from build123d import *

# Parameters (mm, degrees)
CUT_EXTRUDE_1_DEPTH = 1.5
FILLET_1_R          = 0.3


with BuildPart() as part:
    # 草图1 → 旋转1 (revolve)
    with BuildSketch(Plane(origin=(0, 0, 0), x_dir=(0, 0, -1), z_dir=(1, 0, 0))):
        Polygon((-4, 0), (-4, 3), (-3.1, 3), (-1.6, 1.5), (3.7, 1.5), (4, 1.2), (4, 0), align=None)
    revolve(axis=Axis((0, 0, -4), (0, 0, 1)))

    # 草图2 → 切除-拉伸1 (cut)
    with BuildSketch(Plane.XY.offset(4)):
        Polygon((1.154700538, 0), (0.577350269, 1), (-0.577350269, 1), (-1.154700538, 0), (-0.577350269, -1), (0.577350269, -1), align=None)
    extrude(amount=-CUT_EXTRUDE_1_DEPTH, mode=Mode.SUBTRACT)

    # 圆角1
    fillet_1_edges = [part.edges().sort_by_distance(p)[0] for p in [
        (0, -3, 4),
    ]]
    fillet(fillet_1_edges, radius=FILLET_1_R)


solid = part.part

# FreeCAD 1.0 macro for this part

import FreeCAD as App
import Part
import Sketcher

V = App.Vector
Q = App.Units.Quantity


def edges_at(feature, points):
    """Names of the edges that pass closest to the given points."""
    edges = feature.Shape.Edges
    near = lambda p: min(range(len(edges)), key=lambda i: edges[i].distToShape(Part.Vertex(*p))[0])
    return sorted({f"Edge{near(p) + 1}" for p in points})

doc = App.newDocument("Part")
params = doc.addObject("Spreadsheet::Sheet", "Params")
for row, (alias, value) in enumerate([
    ("sketch1_width", "3 mm"),
    ("sketch1_height", "8 mm"),
    ("sketch1_width2", "1.2 mm"),
    ("sketch1_height2", "5.3 mm"),
    ("revolution_angle", "360 deg"),
    ("pocket1_length", "1.5 mm"),
    ("fillet_radius", "0.3 mm"),
], start=1):
    params.set(f"A{row}", alias)
    params.set(f"B{row}", "=" + value)
    params.setAlias(f"B{row}", alias)

body = doc.addObject("PartDesign::Body", "Body")

sketch1 = body.newObject("Sketcher::SketchObject", "Sketch")
sketch1.AttachmentSupport = (doc.getObject("YZ_Plane"), [""])
sketch1.MapMode = "FlatFace"
sketch1.addGeometry(Part.LineSegment(V(3, 4, 0), V(0, 4, 0)), False)
sketch1.addGeometry(Part.LineSegment(V(0, 4, 0), V(0, -4, 0)), False)
sketch1.addGeometry(Part.LineSegment(V(0, -4, 0), V(1.2, -4, 0)), False)
sketch1.addGeometry(Part.LineSegment(V(1.2, -4, 0), V(1.5, -3.7, 0)), False)
sketch1.addGeometry(Part.LineSegment(V(1.5, -3.7, 0), V(1.5, 1.6, 0)), False)
sketch1.addGeometry(Part.LineSegment(V(1.5, 1.6, 0), V(3, 3.1, 0)), False)
sketch1.addGeometry(Part.LineSegment(V(3, 3.1, 0), V(3, 4, 0)), False)
sketch1.addConstraint(Sketcher.Constraint("Coincident", 0, 2, 1, 1))
sketch1.addConstraint(Sketcher.Constraint("Coincident", 1, 2, 2, 1))
sketch1.addConstraint(Sketcher.Constraint("Coincident", 2, 2, 3, 1))
sketch1.addConstraint(Sketcher.Constraint("Coincident", 3, 2, 4, 1))
sketch1.addConstraint(Sketcher.Constraint("Coincident", 4, 2, 5, 1))
sketch1.addConstraint(Sketcher.Constraint("Coincident", 5, 2, 6, 1))
sketch1.addConstraint(Sketcher.Constraint("Coincident", 6, 2, 0, 1))
sketch1.addConstraint(Sketcher.Constraint("Horizontal", 0))
sketch1.addConstraint(Sketcher.Constraint("Vertical", 1))
sketch1.addConstraint(Sketcher.Constraint("Horizontal", 2))
sketch1.addConstraint(Sketcher.Constraint("Vertical", 4))
sketch1.addConstraint(Sketcher.Constraint("Vertical", 6))
sketch1.addConstraint(Sketcher.Constraint("Symmetric", 0, 2, 1, 2, -1, 1))
sketch1.addConstraint(Sketcher.Constraint("Parallel", 3, 5))
sketch1.addConstraint(Sketcher.Constraint("DistanceX", 0, 2, 0, 1, Q("3 mm")))
sketch1.addConstraint(Sketcher.Constraint("DistanceY", 1, 2, 1, 1, Q("8 mm")))
sketch1.addConstraint(Sketcher.Constraint("Angle", 3, Q("45 deg")))
sketch1.addConstraint(Sketcher.Constraint("DistanceX", 2, 1, 2, 2, Q("1.2 mm")))
sketch1.addConstraint(Sketcher.Constraint("DistanceY", 4, 1, 4, 2, Q("5.3 mm")))
sketch1.addConstraint(Sketcher.Constraint("DistanceX", -1, 1, 3, 2, Q("1.5 mm")))
sketch1.setExpression("Constraints[14]", "Params.sketch1_width")
sketch1.setExpression("Constraints[15]", "Params.sketch1_height")
sketch1.setExpression("Constraints[17]", "Params.sketch1_width2")
sketch1.setExpression("Constraints[18]", "Params.sketch1_height2")
revolution = body.newObject("PartDesign::Revolution", "Revolution")
revolution.Profile = sketch1
revolution.ReferenceAxis = (sketch1, ["V_Axis"])
revolution.setExpression("Angle", "Params.revolution_angle")

sketch2 = body.newObject("Sketcher::SketchObject", "Sketch001")
sketch2.AttachmentSupport = (doc.getObject("XY_Plane"), [""])
sketch2.MapMode = "FlatFace"
sketch2.AttachmentOffset = App.Placement(V(0, 0, 4), App.Rotation())
sketch2.addGeometry(Part.LineSegment(V(1.2, 0, 0), V(0.6, 1, 0)), False)
sketch2.addGeometry(Part.LineSegment(V(0.6, 1, 0), V(-0.6, 1, 0)), False)
sketch2.addGeometry(Part.LineSegment(V(-0.6, 1, 0), V(-1.2, 0, 0)), False)
sketch2.addGeometry(Part.LineSegment(V(-1.2, 0, 0), V(-0.6, -1, 0)), False)
sketch2.addGeometry(Part.LineSegment(V(-0.6, -1, 0), V(0.6, -1, 0)), False)
sketch2.addGeometry(Part.LineSegment(V(0.6, -1, 0), V(1.2, 0, 0)), False)
sketch2.addConstraint(Sketcher.Constraint("Coincident", 0, 2, 1, 1))
sketch2.addConstraint(Sketcher.Constraint("Coincident", 1, 2, 2, 1))
sketch2.addConstraint(Sketcher.Constraint("Coincident", 2, 2, 3, 1))
sketch2.addConstraint(Sketcher.Constraint("Coincident", 3, 2, 4, 1))
sketch2.addConstraint(Sketcher.Constraint("Coincident", 4, 2, 5, 1))
sketch2.addConstraint(Sketcher.Constraint("Coincident", 5, 2, 0, 1))
sketch2.addConstraint(Sketcher.Constraint("Horizontal", 1))
sketch2.addConstraint(Sketcher.Constraint("Horizontal", 4))
sketch2.addConstraint(Sketcher.Constraint("Symmetric", 0, 2, 3, 2, -1, 1))
sketch2.addConstraint(Sketcher.Constraint("Symmetric", 2, 2, 5, 2, -1, 1))
sketch2.addConstraint(Sketcher.Constraint("PointOnObject", 2, 2, -1))
sketch2.addConstraint(Sketcher.Constraint("Parallel", 2, 5))
sketch2.addConstraint(Sketcher.Constraint("Vertical", 1, 2, 3, 2))
sketch2.addConstraint(Sketcher.Constraint("Angle", 0, Q("120 deg")))
sketch2.addConstraint(Sketcher.Constraint("DistanceY", -1, 1, 0, 2, Q("1 mm")))
sketch2.addConstraint(Sketcher.Constraint("DistanceX", 1, 2, 1, 1, Q("1.154701 mm")))
pocket1 = body.newObject("PartDesign::Pocket", "Pocket")
pocket1.Profile = sketch2
pocket1.setExpression("Length", "Params.pocket1_length")
doc.recompute()

fillet = body.newObject("PartDesign::Fillet", "Fillet")
fillet.Base = (pocket1, edges_at(pocket1, [(0, -3, 4)]))
fillet.setExpression("Radius", "Params.fillet_radius")

doc.recompute()
